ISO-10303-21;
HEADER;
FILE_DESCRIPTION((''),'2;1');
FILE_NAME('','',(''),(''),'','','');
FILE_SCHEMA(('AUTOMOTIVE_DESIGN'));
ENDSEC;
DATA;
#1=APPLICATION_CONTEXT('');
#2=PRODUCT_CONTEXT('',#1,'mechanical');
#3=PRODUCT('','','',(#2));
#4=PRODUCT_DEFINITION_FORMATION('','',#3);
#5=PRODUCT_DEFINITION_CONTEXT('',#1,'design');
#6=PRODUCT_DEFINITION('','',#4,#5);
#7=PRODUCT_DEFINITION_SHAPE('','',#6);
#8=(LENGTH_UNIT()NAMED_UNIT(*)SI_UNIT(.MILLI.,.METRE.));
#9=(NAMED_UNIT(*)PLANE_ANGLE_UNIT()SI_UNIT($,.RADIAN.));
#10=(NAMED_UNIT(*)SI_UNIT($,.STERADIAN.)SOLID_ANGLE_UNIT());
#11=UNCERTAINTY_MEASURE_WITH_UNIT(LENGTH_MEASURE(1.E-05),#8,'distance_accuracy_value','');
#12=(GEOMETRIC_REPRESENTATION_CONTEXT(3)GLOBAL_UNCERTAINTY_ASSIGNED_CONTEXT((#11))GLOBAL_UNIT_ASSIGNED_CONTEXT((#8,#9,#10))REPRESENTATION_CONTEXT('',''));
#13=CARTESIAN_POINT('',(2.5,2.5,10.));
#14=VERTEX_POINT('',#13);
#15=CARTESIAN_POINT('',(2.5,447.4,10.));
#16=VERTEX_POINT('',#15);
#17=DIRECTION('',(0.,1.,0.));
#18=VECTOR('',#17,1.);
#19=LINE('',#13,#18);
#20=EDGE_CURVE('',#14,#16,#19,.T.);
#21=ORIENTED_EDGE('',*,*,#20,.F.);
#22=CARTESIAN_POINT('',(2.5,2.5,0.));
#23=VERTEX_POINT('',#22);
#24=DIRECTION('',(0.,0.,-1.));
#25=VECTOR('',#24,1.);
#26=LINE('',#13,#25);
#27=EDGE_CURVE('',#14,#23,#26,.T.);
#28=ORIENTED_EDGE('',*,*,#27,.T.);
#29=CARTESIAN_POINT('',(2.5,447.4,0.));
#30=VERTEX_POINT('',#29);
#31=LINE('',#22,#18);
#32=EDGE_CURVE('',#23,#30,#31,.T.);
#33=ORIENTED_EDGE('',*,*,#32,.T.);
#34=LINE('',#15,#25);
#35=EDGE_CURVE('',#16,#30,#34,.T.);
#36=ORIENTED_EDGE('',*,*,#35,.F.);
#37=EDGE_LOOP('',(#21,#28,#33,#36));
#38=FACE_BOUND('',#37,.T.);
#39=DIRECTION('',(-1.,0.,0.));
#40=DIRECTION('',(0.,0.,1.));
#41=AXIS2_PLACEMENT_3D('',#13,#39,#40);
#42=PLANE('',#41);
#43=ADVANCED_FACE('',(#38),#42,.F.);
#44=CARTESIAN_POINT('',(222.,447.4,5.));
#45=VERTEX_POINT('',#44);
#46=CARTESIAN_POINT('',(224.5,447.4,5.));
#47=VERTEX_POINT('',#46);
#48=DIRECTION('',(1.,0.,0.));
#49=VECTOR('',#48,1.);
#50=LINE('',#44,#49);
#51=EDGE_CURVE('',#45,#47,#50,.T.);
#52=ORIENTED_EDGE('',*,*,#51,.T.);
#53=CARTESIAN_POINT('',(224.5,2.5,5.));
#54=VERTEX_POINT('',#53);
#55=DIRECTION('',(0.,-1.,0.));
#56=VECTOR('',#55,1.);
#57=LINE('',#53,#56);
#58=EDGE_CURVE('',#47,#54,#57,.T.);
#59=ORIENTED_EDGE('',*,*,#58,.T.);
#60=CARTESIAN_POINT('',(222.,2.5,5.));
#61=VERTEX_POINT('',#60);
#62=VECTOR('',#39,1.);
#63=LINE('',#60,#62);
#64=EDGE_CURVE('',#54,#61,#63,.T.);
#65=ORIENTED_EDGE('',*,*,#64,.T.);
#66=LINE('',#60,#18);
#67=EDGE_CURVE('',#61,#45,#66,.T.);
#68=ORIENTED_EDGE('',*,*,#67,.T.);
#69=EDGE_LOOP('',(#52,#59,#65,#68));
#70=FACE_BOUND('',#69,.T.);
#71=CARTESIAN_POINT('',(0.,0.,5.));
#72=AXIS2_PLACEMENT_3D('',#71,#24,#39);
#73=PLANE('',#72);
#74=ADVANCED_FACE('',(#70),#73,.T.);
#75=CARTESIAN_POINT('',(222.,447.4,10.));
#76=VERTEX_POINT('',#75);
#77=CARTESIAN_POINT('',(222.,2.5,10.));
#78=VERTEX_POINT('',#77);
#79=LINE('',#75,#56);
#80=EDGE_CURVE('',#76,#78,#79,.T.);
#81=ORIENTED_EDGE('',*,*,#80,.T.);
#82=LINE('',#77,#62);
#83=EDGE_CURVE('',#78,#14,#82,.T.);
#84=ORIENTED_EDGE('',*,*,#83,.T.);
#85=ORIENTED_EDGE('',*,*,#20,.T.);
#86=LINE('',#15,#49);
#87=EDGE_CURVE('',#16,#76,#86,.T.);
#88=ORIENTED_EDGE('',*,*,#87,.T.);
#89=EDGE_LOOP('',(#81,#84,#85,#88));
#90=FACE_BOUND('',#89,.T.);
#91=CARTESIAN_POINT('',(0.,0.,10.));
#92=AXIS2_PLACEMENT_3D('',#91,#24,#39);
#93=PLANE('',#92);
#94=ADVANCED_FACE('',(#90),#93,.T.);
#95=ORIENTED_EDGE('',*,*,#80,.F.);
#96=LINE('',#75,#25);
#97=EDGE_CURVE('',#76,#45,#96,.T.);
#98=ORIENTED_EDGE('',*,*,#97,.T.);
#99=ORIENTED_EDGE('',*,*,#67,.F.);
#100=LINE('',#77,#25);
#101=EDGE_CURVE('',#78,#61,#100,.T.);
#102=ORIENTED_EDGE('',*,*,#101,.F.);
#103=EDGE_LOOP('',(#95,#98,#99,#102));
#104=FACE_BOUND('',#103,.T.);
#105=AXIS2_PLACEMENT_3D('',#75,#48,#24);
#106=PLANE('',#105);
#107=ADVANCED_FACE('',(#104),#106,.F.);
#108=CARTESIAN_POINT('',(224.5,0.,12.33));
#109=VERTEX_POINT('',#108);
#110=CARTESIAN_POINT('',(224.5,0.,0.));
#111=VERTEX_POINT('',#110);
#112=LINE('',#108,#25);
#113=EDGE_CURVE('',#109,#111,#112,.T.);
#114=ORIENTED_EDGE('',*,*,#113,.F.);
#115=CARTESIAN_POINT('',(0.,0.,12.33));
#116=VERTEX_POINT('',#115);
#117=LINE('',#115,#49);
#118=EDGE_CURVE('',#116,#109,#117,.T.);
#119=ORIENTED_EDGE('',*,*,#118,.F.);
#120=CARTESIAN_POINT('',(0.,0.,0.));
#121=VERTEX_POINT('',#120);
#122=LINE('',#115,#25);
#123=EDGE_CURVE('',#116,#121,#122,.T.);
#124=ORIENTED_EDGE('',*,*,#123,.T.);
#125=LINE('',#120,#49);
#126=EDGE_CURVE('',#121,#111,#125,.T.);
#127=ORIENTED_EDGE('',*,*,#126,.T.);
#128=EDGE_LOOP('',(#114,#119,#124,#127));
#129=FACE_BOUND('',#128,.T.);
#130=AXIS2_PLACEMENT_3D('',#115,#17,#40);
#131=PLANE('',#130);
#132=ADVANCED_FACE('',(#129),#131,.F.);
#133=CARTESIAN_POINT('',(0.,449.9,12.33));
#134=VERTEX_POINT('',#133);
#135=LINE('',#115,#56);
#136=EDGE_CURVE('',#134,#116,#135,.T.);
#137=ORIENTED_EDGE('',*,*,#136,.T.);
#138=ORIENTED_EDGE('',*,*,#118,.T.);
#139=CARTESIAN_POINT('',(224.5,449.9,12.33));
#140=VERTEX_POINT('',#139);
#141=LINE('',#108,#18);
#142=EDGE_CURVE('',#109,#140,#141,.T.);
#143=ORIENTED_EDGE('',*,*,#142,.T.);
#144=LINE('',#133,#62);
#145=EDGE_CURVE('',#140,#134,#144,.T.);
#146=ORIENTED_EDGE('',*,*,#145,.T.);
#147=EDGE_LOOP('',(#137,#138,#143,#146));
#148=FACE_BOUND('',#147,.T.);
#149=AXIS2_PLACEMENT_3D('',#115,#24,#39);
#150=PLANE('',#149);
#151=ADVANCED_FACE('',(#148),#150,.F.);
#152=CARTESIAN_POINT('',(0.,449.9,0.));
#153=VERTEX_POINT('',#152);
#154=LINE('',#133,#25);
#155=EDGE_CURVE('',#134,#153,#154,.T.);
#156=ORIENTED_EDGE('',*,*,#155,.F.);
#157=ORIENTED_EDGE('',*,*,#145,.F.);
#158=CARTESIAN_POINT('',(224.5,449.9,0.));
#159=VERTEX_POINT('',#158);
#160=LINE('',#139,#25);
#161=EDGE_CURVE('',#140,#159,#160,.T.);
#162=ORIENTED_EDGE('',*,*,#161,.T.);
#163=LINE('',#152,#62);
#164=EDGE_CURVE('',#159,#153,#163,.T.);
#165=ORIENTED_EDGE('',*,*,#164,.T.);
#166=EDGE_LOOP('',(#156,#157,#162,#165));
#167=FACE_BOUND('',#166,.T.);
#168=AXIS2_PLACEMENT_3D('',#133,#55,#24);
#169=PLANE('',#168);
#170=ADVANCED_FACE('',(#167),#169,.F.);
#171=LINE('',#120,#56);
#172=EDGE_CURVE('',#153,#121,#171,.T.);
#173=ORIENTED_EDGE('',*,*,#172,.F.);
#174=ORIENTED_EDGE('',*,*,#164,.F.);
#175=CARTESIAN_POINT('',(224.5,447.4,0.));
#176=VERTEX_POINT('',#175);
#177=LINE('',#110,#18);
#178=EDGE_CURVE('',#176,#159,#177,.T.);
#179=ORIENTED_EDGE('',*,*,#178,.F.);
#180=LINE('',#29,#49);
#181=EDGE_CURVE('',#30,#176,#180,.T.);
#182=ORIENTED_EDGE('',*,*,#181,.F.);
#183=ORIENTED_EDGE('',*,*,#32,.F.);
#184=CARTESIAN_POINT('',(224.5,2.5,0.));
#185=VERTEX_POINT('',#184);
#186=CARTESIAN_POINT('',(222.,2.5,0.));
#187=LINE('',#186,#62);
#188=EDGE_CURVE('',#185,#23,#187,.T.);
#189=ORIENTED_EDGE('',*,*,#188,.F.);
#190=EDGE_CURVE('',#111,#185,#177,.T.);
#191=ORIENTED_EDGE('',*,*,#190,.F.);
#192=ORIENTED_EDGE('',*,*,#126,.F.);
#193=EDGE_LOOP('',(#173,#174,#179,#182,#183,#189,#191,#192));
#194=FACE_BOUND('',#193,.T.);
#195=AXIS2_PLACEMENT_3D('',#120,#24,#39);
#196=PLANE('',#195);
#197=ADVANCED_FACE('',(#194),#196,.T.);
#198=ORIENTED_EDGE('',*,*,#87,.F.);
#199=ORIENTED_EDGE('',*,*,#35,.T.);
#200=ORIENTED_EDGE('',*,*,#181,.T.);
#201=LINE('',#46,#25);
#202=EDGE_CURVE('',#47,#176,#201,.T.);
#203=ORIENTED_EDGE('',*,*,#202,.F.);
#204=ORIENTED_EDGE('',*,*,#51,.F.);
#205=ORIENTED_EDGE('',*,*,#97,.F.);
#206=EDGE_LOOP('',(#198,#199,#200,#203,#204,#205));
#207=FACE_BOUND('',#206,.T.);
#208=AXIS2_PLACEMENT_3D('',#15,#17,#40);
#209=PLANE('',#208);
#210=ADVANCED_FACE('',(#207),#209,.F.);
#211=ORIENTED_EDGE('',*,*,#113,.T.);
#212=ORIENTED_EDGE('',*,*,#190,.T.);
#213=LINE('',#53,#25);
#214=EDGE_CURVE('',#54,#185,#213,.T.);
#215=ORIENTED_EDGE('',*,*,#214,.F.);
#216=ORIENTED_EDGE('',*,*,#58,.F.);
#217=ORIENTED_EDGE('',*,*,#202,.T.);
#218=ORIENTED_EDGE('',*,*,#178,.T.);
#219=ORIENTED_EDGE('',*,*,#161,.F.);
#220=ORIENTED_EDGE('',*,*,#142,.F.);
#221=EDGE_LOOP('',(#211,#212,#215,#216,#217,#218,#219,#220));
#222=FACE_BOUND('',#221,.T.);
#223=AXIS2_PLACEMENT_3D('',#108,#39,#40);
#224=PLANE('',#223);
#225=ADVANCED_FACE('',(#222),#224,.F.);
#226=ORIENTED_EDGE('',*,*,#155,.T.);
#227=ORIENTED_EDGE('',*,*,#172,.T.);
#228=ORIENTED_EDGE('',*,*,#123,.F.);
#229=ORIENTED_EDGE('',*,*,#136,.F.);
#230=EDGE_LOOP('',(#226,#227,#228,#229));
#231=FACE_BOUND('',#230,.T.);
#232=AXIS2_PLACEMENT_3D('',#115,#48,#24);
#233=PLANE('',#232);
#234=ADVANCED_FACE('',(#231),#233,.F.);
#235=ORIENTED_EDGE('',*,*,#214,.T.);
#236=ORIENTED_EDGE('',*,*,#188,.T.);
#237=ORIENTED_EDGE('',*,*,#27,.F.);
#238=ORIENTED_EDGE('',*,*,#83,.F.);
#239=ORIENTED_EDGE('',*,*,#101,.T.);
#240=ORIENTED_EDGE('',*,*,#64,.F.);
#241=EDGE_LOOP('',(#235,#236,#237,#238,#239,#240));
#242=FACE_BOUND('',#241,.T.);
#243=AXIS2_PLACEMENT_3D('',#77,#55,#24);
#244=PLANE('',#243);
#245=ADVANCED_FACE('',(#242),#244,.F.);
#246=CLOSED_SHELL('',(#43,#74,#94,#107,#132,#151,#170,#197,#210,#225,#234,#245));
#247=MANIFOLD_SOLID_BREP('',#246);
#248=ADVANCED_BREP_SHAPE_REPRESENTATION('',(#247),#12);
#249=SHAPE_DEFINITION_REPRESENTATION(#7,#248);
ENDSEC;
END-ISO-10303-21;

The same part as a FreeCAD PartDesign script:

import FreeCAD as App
import Part
import Sketcher

V = App.Vector
Q = App.Units.Quantity


def add_polygon(sketch, points):
    """Adds a closed chain of lines whose ends are joined by coincident constraints."""
    first, n = sketch.GeometryCount, len(points)
    for a, b in zip(points, points[1:] + points[:1]):
        sketch.addGeometry(Part.LineSegment(App.Vector(*a, 0), App.Vector(*b, 0)), False)
    for i in range(n):
        sketch.addConstraint(Sketcher.Constraint("Coincident", first + i, 2, first + (i + 1) % n, 1))

doc = App.newDocument("Part")
body = doc.addObject("PartDesign::Body", "Body")

# Sketch on XY plane
sketch1 = doc.addObject("Sketcher::SketchObject", "Sketch")
body.addObject(sketch1)
sketch1.AttachmentSupport = (doc.XY_Plane, [""])
sketch1.MapMode = "FlatFace"
add_polygon(sketch1, [(0, 450), (0, 0), (224, 0), (224, 450)])  # lines 0-3
sketch1.addConstraint(Sketcher.Constraint("Vertical", 0))
sketch1.addConstraint(Sketcher.Constraint("Horizontal", 1))
sketch1.addConstraint(Sketcher.Constraint("Vertical", 2))
sketch1.addConstraint(Sketcher.Constraint("Horizontal", 3))
sketch1.addConstraint(Sketcher.Constraint("Coincident", 0, 2, -1, 1))
sketch1.addConstraint(Sketcher.Constraint("DistanceX", 1, 1, 1, 2, Q("224.5 mm")))
sketch1.addConstraint(Sketcher.Constraint("DistanceY", 0, 2, 0, 1, Q("449.9 mm")))
pad1 = doc.addObject("PartDesign::Pad", "Pad")
body.addObject(pad1)
pad1.Profile = sketch1
pad1.Length = 12.33

# Sketch on XY plane
sketch2 = doc.addObject("Sketcher::SketchObject", "Sketch001")
body.addObject(sketch2)
sketch2.AttachmentSupport = (doc.XY_Plane, [""])
sketch2.MapMode = "FlatFace"
add_polygon(sketch2, [(222, 447), (222, 2), (2, 2), (2, 447)])  # lines 0-3
sketch2.addConstraint(Sketcher.Constraint("Vertical", 0))
sketch2.addConstraint(Sketcher.Constraint("Horizontal", 1))
sketch2.addConstraint(Sketcher.Constraint("Vertical", 2))
sketch2.addConstraint(Sketcher.Constraint("Horizontal", 3))
sketch2.addConstraint(Sketcher.Constraint("DistanceX", 1, 2, 1, 1, Q("219.5 mm")))
sketch2.addConstraint(Sketcher.Constraint("DistanceY", 0, 2, 0, 1, Q("444.9 mm")))
sketch2.addConstraint(Sketcher.Constraint("DistanceX", -1, 1, 0, 2, Q("222 mm")))
sketch2.addConstraint(Sketcher.Constraint("DistanceY", -1, 1, 0, 2, Q("2.5 mm")))
pocket1 = doc.addObject("PartDesign::Pocket", "Pocket")
body.addObject(pocket1)
pocket1.Profile = sketch2
pocket1.Length = 10
pocket1.Reversed = True

# Sketch on XY plane
sketch3 = doc.addObject("Sketcher::SketchObject", "Sketch002")
body.addObject(sketch3)
sketch3.AttachmentSupport = (doc.XY_Plane, [""])
sketch3.MapMode = "FlatFace"
add_polygon(sketch3, [(224.5, 447.4), (224.5, 2.5), (222, 2.5), (222, 447.4)])  # lines 0-3
sketch3.addConstraint(Sketcher.Constraint("Vertical", 0))
sketch3.addConstraint(Sketcher.Constraint("Horizontal", 1))
sketch3.addConstraint(Sketcher.Constraint("Vertical", 2))
sketch3.addConstraint(Sketcher.Constraint("Horizontal", 3))
sketch3.addConstraint(Sketcher.Constraint("DistanceX", 1, 2, 1, 1, Q("2.5 mm")))
sketch3.addConstraint(Sketcher.Constraint("DistanceY", 0, 2, 0, 1, Q("444.9 mm")))
sketch3.addConstraint(Sketcher.Constraint("DistanceX", -1, 1, 1, 2, Q("222 mm")))
sketch3.addConstraint(Sketcher.Constraint("DistanceY", -1, 1, 0, 2, Q("2.5 mm")))
pocket2 = doc.addObject("PartDesign::Pocket", "Pocket001")
body.addObject(pocket2)
pocket2.Profile = sketch3
pocket2.Length = 5
pocket2.Reversed = True

doc.recompute()
